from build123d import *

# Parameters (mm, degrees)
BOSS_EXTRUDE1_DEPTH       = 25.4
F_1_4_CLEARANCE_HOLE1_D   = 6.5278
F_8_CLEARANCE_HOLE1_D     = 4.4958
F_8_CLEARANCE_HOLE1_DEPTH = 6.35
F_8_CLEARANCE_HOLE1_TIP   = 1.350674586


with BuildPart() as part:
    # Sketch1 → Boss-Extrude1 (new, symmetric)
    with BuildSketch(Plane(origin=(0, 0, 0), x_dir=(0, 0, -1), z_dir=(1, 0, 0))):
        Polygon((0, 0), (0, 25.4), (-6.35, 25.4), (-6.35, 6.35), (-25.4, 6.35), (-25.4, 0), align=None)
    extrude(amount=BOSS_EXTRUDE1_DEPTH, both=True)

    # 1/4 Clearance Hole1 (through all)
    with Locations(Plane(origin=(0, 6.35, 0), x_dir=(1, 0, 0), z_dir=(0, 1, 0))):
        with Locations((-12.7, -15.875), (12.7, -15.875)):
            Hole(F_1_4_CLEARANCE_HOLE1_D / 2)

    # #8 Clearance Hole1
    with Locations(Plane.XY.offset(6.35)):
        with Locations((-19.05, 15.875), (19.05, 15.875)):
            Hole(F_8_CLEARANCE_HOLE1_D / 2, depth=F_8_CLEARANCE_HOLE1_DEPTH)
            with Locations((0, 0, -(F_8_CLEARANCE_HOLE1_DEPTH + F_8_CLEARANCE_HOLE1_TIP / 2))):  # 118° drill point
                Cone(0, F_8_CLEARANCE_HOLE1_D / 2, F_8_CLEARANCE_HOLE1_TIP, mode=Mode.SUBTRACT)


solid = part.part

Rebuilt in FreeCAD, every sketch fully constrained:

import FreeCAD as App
import Part
import Sketcher

V = App.Vector
Q = App.Units.Quantity


def add_polygon(sketch, points):
    """Adds a closed chain of lines whose ends are joined by coincident constraints."""
    first, n = sketch.GeometryCount, len(points)
    for a, b in zip(points, points[1:] + points[:1]):
        sketch.addGeometry(Part.LineSegment(App.Vector(*a, 0), App.Vector(*b, 0)), False)
    for i in range(n):
        sketch.addConstraint(Sketcher.Constraint("Coincident", first + i, 2, first + (i + 1) % n, 1))

doc = App.newDocument("Part")
body = doc.addObject("PartDesign::Body", "Body")

sketch1 = body.newObject("Sketcher::SketchObject", "Sketch")
sketch1.AttachmentSupport = (doc.getObject("YZ_Plane"), [""])
sketch1.MapMode = "FlatFace"
add_polygon(sketch1, [(0, 0), (25, 0), (25, 6), (6, 6), (6, 25), (0, 25)])
sketch1.addConstraint(Sketcher.Constraint("Horizontal", 0))
sketch1.addConstraint(Sketcher.Constraint("Vertical", 1))
sketch1.addConstraint(Sketcher.Constraint("Horizontal", 2))
sketch1.addConstraint(Sketcher.Constraint("Vertical", 3))
sketch1.addConstraint(Sketcher.Constraint("Horizontal", 4))
sketch1.addConstraint(Sketcher.Constraint("Vertical", 5))
sketch1.addConstraint(Sketcher.Constraint("Coincident", 5, 2, -1, 1))
sketch1.addConstraint(Sketcher.Constraint("Equal", 4, 1))
sketch1.addConstraint(Sketcher.Constraint("Equal", 2, 3))
sketch1.addConstraint(Sketcher.Constraint("DistanceX", 0, 1, 0, 2, Q("1 in")))
sketch1.addConstraint(Sketcher.Constraint("DistanceX", 2, 2, 2, 1, Q("0.75 in")))
pad1 = body.newObject("PartDesign::Pad", "Pad")
pad1.Profile = sketch1
pad1.Length = Q("2 in")
pad1.Midplane = True

sketch2 = body.newObject("Sketcher::SketchObject", "Sketch001")
sketch2.AttachmentSupport = (doc.getObject("XZ_Plane"), [""])
sketch2.MapMode = "FlatFace"
sketch2.AttachmentOffset = App.Placement(V(0, 0, -0.25 * 25.4), App.Rotation())
sketch2.addGeometry(Part.Circle(V(-12.7, 15.9, 0), V(0, 0, 1), 3.3), False)
sketch2.addGeometry(Part.Circle(V(12.7, 15.9, 0), V(0, 0, 1), 3.3), False)
sketch2.addConstraint(Sketcher.Constraint("Equal", 0, 1))
sketch2.addConstraint(Sketcher.Constraint("Symmetric", 0, 3, 1, 3, -2))
sketch2.addConstraint(Sketcher.Constraint("Diameter", 0, Q("0.257 in")))
sketch2.addConstraint(Sketcher.Constraint("DistanceX", 0, 3, 1, 3, Q("1 in")))
sketch2.addConstraint(Sketcher.Constraint("DistanceY", -1, 1, 0, 3, Q("0.625 in")))
doc.recompute()
hole = body.newObject("PartDesign::Hole", "Hole")
hole.Profile = sketch2
hole.ThreadType = "None"
hole.Diameter = Q("0.257 in")
hole.DepthType = "ThroughAll"
hole.Reversed = True

sketch3 = body.newObject("Sketcher::SketchObject", "Sketch002")
sketch3.AttachmentSupport = (doc.getObject("XY_Plane"), [""])
sketch3.MapMode = "FlatFace"
sketch3.AttachmentOffset = App.Placement(V(0, 0, 0.25 * 25.4), App.Rotation())
sketch3.addGeometry(Part.Circle(V(-19.1, 15.9, 0), V(0, 0, 1), 2.2), False)
sketch3.addGeometry(Part.Circle(V(19.1, 15.9, 0), V(0, 0, 1), 2.2), False)
sketch3.addConstraint(Sketcher.Constraint("Equal", 0, 1))
sketch3.addConstraint(Sketcher.Constraint("Symmetric", 0, 3, 1, 3, -2))
sketch3.addConstraint(Sketcher.Constraint("Diameter", 0, Q("0.177 in")))
sketch3.addConstraint(Sketcher.Constraint("DistanceX", 0, 3, 1, 3, Q("1.5 in")))
sketch3.addConstraint(Sketcher.Constraint("DistanceY", -1, 1, 0, 3, Q("0.625 in")))
doc.recompute()
hole2 = body.newObject("PartDesign::Hole", "Hole001")
hole2.Profile = sketch3
hole2.ThreadType = "None"
hole2.Diameter = Q("0.177 in")
hole2.DepthType = "Dimension"
hole2.Depth = Q("0.25 in")
hole2.DrillPoint = "Angled"
hole2.DrillPointAngle = 118

doc.recompute()
